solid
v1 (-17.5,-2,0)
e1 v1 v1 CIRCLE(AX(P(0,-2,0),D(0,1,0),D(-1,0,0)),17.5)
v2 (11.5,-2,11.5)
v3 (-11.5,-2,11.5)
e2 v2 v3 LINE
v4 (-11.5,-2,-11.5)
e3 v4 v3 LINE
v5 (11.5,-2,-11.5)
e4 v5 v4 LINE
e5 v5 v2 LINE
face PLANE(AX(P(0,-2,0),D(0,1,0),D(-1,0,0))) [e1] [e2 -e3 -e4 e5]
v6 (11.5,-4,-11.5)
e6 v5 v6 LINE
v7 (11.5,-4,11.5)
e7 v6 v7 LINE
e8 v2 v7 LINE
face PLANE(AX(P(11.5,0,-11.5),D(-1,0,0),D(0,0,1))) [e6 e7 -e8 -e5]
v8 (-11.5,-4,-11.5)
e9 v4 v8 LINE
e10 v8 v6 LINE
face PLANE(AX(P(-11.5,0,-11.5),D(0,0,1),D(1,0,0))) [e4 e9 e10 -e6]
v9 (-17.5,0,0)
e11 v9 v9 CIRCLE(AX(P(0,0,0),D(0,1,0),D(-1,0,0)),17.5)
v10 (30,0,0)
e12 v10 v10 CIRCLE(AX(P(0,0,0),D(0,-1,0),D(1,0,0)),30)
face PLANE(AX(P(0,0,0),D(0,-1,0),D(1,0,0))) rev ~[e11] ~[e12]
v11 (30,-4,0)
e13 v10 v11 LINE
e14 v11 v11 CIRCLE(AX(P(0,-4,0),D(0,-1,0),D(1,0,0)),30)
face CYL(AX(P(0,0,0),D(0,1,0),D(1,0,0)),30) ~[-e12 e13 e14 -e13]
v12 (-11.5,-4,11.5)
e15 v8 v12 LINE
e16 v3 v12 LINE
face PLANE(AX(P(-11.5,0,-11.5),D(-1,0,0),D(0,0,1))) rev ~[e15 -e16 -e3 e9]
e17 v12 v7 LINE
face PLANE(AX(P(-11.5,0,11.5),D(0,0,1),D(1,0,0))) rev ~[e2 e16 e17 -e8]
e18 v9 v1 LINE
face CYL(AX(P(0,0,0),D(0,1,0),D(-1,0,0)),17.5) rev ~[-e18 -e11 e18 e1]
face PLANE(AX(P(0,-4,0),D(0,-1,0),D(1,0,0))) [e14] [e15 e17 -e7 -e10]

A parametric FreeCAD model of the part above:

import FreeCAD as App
import Part
import Sketcher
Q = App.Units.Quantity


def add_polygon(sketch, points):
    """Adds a closed chain of lines whose ends are joined by coincident constraints."""
    first, n = sketch.GeometryCount, len(points)
    for a, b in zip(points, points[1:] + points[:1]):
        sketch.addGeometry(Part.LineSegment(App.Vector(*a, 0), App.Vector(*b, 0)), False)
    for i in range(n):
        sketch.addConstraint(Sketcher.Constraint("Coincident", first + i, 2, first + (i + 1) % n, 1))

doc = App.newDocument("Part")
body = doc.addObject("PartDesign::Body", "Body")

# Sketch on XZ plane
sketch1 = doc.addObject("Sketcher::SketchObject", "Sketch")
body.addObject(sketch1)
sketch1.AttachmentSupport = (doc.XZ_Plane, [""])
sketch1.MapMode = "FlatFace"
sketch1.addGeometry(Part.Circle(App.Vector(0, 0, 0), App.Vector(0, 0, 1), 30), False)  # 0
add_polygon(sketch1, [(12, -12), (-12, -12), (-12, 12), (12, 12)])  # lines 1-4
sketch1.addConstraint([
    Sketcher.Constraint("Horizontal", 1),
    Sketcher.Constraint("Vertical", 2),
    Sketcher.Constraint("Horizontal", 3),
    Sketcher.Constraint("Vertical", 4),
    Sketcher.Constraint("Coincident", 0, 3, -1, 1),
    Sketcher.Constraint("Symmetric", 1, 2, 3, 2, -1, 1),
    Sketcher.Constraint("Equal", 3, 2),
    Sketcher.Constraint("Diameter", 0, Q("60 mm")),
    Sketcher.Constraint("DistanceX", 1, 2, 1, 1, Q("23 mm")),
])
pad1 = doc.addObject("PartDesign::Pad", "Pad")
body.addObject(pad1)
pad1.Profile = sketch1
pad1.Length = 4

# Sketch on XZ plane
sketch2 = doc.addObject("Sketcher::SketchObject", "Sketch001")
body.addObject(sketch2)
sketch2.AttachmentSupport = (doc.XZ_Plane, [""])
sketch2.MapMode = "FlatFace"
sketch2.addGeometry(Part.Circle(App.Vector(0, 0, 0), App.Vector(0, 0, 1), 18), False)  # 0
add_polygon(sketch2, [(-12, -12), (12, -12), (12, 12), (-12, 12)])  # lines 1-4
sketch2.addConstraint([
    Sketcher.Constraint("Horizontal", 1),
    Sketcher.Constraint("Vertical", 2),
    Sketcher.Constraint("Horizontal", 3),
    Sketcher.Constraint("Vertical", 4),
    Sketcher.Constraint("Coincident", 0, 3, -1, 1),
    Sketcher.Constraint("Symmetric", 1, 2, 3, 2, -1, 1),
    Sketcher.Constraint("Equal", 3, 2),
    Sketcher.Constraint("Diameter", 0, Q("35 mm")),
    Sketcher.Constraint("DistanceX", 1, 1, 1, 2, Q("23 mm")),
])
pocket1 = doc.addObject("PartDesign::Pocket", "Pocket")
body.addObject(pocket1)
pocket1.Profile = sketch2
pocket1.Length = 2
pocket1.Reversed = True

doc.recompute()
